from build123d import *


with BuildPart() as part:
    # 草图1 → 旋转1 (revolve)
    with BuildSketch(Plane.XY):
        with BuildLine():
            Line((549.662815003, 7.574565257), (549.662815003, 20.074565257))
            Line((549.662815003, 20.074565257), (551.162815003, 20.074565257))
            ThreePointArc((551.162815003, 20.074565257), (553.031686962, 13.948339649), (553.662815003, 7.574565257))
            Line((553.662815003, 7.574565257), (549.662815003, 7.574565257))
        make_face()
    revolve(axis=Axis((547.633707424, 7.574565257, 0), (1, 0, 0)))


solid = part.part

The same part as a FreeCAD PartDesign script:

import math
import FreeCAD as App
import Part
import Sketcher
from FreeCAD import Vector

doc = App.newDocument("Part")
body = doc.addObject("PartDesign::Body", "Body")

sketch1 = body.newObject("Sketcher::SketchObject", "Sketch")
sketch1.AttachmentSupport = (doc.getObject("XY_Plane"), [""])
sketch1.MapMode = "FlatFace"
sketch1.addGeometry([
    Part.LineSegment(Vector(549.7, 20.1, 0), Vector(549.7, 7.6, 0)),
    Part.LineSegment(Vector(549.7, 7.6, 0), Vector(553.7, 7.6, 0)),
    Part.ArcOfCircle(Part.Circle(Vector(521.2, 7.6, 0), Vector(0, 0, 1), 32.5), math.radians(0), math.radians(23)),
    Part.LineSegment(Vector(551.2, 20.1, 0), Vector(549.7, 20.1, 0)),
], False)
sketch1.addGeometry(Part.LineSegment(Vector(521.2, 7.6, 0), Vector(553.7, 7.6, 0)), True)
sketch1.addConstraint([
    Sketcher.Constraint("Coincident", 0, 2, 1, 1),
    Sketcher.Constraint("Coincident", 1, 2, 2, 1),
    Sketcher.Constraint("Coincident", 2, 2, 3, 1),
    Sketcher.Constraint("Coincident", 3, 2, 0, 1),
    Sketcher.Constraint("Vertical", 0),
    Sketcher.Constraint("Horizontal", 1),
    Sketcher.Constraint("Horizontal", 3),
    Sketcher.Constraint("Horizontal", 4),
    Sketcher.Constraint("Coincident", 4, 1, 2, 3),
    Sketcher.Constraint("Coincident", 4, 2, 1, 2),
    Sketcher.Constraint("Radius", 2, 32.5),
    Sketcher.Constraint("DistanceX", 1, 1, 1, 2, 4.0),
    Sketcher.Constraint("DistanceX", 3, 2, 3, 1, 1.5),
    Sketcher.Constraint("DistanceX", -1, 1, 2, 3, 521.162815),
    Sketcher.Constraint("DistanceY", -1, 1, 2, 3, 7.574565),
])
revolution = body.newObject("PartDesign::Revolution", "Revolution")
revolution.Profile = sketch1
revolution.ReferenceAxis = (sketch1, ["Axis0"])
revolution.Angle = 360

doc.recompute()
